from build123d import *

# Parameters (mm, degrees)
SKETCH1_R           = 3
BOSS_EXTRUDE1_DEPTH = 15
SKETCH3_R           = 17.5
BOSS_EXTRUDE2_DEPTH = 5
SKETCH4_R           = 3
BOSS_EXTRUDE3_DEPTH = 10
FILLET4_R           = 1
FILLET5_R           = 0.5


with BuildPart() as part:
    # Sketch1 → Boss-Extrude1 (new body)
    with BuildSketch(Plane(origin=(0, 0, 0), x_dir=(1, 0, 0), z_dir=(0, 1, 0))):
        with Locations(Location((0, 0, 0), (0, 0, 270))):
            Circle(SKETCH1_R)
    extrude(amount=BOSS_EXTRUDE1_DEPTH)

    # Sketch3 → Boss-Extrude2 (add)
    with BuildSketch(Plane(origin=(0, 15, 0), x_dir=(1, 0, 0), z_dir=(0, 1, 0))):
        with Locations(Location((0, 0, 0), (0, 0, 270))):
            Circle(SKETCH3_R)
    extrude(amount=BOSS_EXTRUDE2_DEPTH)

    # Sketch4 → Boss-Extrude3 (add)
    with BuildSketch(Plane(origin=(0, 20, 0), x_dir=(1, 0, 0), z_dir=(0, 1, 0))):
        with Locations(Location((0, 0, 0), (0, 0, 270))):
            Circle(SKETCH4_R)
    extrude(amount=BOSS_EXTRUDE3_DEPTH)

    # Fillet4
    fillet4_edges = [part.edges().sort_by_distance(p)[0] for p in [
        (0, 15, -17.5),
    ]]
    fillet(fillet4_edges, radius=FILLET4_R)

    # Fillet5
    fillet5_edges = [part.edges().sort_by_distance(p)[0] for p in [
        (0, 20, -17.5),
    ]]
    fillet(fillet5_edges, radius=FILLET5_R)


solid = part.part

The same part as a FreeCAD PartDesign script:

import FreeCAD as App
import Part
import Sketcher
Q = App.Units.Quantity


def edges_at(feature, points):
    """Names of the edges that pass closest to the given points."""
    edges = feature.Shape.Edges
    near = lambda p: min(range(len(edges)), key=lambda i: edges[i].distToShape(Part.Vertex(*p))[0])
    return sorted({f"Edge{near(p) + 1}" for p in points})

doc = App.newDocument("Part")
body = doc.addObject("PartDesign::Body", "Body")

# Sketch on XZ plane
sketch1 = doc.addObject("Sketcher::SketchObject", "Sketch")
body.addObject(sketch1)
sketch1.AttachmentSupport = (doc.XZ_Plane, [""])
sketch1.MapMode = "FlatFace"
sketch1.addGeometry(Part.Circle(App.Vector(0, 0, 0), App.Vector(0, 0, 1), 3), False)
sketch1.addConstraint([
    Sketcher.Constraint("Coincident", 0, 3, -1, 1),
    Sketcher.Constraint("Diameter", 0, Q("6 mm")),
])
pad1 = doc.addObject("PartDesign::Pad", "Pad")
body.addObject(pad1)
pad1.Profile = sketch1
pad1.Length = 15
pad1.Reversed = True

# Sketch on XZ plane
sketch2 = doc.addObject("Sketcher::SketchObject", "Sketch001")
body.addObject(sketch2)
sketch2.AttachmentSupport = (doc.XZ_Plane, [""])
sketch2.MapMode = "FlatFace"
sketch2.AttachmentOffset = App.Placement(App.Vector(0, 0, -15), App.Rotation())
sketch2.addGeometry(Part.Circle(App.Vector(0, 0, 0), App.Vector(0, 0, 1), 17.5), False)
sketch2.addConstraint([
    Sketcher.Constraint("Coincident", 0, 3, -1, 1),
    Sketcher.Constraint("Diameter", 0, Q("35 mm")),
])
pad2 = doc.addObject("PartDesign::Pad", "Pad001")
body.addObject(pad2)
pad2.Profile = sketch2
pad2.Length = 5
pad2.Reversed = True

# Sketch on XZ plane
sketch3 = doc.addObject("Sketcher::SketchObject", "Sketch002")
body.addObject(sketch3)
sketch3.AttachmentSupport = (doc.XZ_Plane, [""])
sketch3.MapMode = "FlatFace"
sketch3.AttachmentOffset = App.Placement(App.Vector(0, 0, -20), App.Rotation())
sketch3.addGeometry(Part.Circle(App.Vector(0, 0, 0), App.Vector(0, 0, 1), 3), False)
sketch3.addConstraint([
    Sketcher.Constraint("Coincident", 0, 3, -1, 1),
    Sketcher.Constraint("Diameter", 0, Q("6 mm")),
])
pad3 = doc.addObject("PartDesign::Pad", "Pad002")
body.addObject(pad3)
pad3.Profile = sketch3
pad3.Length = 10
pad3.Reversed = True
doc.recompute()

fillet = doc.addObject("PartDesign::Fillet", "Fillet")
body.addObject(fillet)
fillet.Base = (pad3, edges_at(pad3, [(0, 15, -17.5)]))
fillet.Radius = 1
doc.recompute()

fillet2 = doc.addObject("PartDesign::Fillet", "Fillet001")
body.addObject(fillet2)
fillet2.Base = (fillet, edges_at(fillet, [(0, 20, -17.5)]))
fillet2.Radius = 0.5

doc.recompute()
